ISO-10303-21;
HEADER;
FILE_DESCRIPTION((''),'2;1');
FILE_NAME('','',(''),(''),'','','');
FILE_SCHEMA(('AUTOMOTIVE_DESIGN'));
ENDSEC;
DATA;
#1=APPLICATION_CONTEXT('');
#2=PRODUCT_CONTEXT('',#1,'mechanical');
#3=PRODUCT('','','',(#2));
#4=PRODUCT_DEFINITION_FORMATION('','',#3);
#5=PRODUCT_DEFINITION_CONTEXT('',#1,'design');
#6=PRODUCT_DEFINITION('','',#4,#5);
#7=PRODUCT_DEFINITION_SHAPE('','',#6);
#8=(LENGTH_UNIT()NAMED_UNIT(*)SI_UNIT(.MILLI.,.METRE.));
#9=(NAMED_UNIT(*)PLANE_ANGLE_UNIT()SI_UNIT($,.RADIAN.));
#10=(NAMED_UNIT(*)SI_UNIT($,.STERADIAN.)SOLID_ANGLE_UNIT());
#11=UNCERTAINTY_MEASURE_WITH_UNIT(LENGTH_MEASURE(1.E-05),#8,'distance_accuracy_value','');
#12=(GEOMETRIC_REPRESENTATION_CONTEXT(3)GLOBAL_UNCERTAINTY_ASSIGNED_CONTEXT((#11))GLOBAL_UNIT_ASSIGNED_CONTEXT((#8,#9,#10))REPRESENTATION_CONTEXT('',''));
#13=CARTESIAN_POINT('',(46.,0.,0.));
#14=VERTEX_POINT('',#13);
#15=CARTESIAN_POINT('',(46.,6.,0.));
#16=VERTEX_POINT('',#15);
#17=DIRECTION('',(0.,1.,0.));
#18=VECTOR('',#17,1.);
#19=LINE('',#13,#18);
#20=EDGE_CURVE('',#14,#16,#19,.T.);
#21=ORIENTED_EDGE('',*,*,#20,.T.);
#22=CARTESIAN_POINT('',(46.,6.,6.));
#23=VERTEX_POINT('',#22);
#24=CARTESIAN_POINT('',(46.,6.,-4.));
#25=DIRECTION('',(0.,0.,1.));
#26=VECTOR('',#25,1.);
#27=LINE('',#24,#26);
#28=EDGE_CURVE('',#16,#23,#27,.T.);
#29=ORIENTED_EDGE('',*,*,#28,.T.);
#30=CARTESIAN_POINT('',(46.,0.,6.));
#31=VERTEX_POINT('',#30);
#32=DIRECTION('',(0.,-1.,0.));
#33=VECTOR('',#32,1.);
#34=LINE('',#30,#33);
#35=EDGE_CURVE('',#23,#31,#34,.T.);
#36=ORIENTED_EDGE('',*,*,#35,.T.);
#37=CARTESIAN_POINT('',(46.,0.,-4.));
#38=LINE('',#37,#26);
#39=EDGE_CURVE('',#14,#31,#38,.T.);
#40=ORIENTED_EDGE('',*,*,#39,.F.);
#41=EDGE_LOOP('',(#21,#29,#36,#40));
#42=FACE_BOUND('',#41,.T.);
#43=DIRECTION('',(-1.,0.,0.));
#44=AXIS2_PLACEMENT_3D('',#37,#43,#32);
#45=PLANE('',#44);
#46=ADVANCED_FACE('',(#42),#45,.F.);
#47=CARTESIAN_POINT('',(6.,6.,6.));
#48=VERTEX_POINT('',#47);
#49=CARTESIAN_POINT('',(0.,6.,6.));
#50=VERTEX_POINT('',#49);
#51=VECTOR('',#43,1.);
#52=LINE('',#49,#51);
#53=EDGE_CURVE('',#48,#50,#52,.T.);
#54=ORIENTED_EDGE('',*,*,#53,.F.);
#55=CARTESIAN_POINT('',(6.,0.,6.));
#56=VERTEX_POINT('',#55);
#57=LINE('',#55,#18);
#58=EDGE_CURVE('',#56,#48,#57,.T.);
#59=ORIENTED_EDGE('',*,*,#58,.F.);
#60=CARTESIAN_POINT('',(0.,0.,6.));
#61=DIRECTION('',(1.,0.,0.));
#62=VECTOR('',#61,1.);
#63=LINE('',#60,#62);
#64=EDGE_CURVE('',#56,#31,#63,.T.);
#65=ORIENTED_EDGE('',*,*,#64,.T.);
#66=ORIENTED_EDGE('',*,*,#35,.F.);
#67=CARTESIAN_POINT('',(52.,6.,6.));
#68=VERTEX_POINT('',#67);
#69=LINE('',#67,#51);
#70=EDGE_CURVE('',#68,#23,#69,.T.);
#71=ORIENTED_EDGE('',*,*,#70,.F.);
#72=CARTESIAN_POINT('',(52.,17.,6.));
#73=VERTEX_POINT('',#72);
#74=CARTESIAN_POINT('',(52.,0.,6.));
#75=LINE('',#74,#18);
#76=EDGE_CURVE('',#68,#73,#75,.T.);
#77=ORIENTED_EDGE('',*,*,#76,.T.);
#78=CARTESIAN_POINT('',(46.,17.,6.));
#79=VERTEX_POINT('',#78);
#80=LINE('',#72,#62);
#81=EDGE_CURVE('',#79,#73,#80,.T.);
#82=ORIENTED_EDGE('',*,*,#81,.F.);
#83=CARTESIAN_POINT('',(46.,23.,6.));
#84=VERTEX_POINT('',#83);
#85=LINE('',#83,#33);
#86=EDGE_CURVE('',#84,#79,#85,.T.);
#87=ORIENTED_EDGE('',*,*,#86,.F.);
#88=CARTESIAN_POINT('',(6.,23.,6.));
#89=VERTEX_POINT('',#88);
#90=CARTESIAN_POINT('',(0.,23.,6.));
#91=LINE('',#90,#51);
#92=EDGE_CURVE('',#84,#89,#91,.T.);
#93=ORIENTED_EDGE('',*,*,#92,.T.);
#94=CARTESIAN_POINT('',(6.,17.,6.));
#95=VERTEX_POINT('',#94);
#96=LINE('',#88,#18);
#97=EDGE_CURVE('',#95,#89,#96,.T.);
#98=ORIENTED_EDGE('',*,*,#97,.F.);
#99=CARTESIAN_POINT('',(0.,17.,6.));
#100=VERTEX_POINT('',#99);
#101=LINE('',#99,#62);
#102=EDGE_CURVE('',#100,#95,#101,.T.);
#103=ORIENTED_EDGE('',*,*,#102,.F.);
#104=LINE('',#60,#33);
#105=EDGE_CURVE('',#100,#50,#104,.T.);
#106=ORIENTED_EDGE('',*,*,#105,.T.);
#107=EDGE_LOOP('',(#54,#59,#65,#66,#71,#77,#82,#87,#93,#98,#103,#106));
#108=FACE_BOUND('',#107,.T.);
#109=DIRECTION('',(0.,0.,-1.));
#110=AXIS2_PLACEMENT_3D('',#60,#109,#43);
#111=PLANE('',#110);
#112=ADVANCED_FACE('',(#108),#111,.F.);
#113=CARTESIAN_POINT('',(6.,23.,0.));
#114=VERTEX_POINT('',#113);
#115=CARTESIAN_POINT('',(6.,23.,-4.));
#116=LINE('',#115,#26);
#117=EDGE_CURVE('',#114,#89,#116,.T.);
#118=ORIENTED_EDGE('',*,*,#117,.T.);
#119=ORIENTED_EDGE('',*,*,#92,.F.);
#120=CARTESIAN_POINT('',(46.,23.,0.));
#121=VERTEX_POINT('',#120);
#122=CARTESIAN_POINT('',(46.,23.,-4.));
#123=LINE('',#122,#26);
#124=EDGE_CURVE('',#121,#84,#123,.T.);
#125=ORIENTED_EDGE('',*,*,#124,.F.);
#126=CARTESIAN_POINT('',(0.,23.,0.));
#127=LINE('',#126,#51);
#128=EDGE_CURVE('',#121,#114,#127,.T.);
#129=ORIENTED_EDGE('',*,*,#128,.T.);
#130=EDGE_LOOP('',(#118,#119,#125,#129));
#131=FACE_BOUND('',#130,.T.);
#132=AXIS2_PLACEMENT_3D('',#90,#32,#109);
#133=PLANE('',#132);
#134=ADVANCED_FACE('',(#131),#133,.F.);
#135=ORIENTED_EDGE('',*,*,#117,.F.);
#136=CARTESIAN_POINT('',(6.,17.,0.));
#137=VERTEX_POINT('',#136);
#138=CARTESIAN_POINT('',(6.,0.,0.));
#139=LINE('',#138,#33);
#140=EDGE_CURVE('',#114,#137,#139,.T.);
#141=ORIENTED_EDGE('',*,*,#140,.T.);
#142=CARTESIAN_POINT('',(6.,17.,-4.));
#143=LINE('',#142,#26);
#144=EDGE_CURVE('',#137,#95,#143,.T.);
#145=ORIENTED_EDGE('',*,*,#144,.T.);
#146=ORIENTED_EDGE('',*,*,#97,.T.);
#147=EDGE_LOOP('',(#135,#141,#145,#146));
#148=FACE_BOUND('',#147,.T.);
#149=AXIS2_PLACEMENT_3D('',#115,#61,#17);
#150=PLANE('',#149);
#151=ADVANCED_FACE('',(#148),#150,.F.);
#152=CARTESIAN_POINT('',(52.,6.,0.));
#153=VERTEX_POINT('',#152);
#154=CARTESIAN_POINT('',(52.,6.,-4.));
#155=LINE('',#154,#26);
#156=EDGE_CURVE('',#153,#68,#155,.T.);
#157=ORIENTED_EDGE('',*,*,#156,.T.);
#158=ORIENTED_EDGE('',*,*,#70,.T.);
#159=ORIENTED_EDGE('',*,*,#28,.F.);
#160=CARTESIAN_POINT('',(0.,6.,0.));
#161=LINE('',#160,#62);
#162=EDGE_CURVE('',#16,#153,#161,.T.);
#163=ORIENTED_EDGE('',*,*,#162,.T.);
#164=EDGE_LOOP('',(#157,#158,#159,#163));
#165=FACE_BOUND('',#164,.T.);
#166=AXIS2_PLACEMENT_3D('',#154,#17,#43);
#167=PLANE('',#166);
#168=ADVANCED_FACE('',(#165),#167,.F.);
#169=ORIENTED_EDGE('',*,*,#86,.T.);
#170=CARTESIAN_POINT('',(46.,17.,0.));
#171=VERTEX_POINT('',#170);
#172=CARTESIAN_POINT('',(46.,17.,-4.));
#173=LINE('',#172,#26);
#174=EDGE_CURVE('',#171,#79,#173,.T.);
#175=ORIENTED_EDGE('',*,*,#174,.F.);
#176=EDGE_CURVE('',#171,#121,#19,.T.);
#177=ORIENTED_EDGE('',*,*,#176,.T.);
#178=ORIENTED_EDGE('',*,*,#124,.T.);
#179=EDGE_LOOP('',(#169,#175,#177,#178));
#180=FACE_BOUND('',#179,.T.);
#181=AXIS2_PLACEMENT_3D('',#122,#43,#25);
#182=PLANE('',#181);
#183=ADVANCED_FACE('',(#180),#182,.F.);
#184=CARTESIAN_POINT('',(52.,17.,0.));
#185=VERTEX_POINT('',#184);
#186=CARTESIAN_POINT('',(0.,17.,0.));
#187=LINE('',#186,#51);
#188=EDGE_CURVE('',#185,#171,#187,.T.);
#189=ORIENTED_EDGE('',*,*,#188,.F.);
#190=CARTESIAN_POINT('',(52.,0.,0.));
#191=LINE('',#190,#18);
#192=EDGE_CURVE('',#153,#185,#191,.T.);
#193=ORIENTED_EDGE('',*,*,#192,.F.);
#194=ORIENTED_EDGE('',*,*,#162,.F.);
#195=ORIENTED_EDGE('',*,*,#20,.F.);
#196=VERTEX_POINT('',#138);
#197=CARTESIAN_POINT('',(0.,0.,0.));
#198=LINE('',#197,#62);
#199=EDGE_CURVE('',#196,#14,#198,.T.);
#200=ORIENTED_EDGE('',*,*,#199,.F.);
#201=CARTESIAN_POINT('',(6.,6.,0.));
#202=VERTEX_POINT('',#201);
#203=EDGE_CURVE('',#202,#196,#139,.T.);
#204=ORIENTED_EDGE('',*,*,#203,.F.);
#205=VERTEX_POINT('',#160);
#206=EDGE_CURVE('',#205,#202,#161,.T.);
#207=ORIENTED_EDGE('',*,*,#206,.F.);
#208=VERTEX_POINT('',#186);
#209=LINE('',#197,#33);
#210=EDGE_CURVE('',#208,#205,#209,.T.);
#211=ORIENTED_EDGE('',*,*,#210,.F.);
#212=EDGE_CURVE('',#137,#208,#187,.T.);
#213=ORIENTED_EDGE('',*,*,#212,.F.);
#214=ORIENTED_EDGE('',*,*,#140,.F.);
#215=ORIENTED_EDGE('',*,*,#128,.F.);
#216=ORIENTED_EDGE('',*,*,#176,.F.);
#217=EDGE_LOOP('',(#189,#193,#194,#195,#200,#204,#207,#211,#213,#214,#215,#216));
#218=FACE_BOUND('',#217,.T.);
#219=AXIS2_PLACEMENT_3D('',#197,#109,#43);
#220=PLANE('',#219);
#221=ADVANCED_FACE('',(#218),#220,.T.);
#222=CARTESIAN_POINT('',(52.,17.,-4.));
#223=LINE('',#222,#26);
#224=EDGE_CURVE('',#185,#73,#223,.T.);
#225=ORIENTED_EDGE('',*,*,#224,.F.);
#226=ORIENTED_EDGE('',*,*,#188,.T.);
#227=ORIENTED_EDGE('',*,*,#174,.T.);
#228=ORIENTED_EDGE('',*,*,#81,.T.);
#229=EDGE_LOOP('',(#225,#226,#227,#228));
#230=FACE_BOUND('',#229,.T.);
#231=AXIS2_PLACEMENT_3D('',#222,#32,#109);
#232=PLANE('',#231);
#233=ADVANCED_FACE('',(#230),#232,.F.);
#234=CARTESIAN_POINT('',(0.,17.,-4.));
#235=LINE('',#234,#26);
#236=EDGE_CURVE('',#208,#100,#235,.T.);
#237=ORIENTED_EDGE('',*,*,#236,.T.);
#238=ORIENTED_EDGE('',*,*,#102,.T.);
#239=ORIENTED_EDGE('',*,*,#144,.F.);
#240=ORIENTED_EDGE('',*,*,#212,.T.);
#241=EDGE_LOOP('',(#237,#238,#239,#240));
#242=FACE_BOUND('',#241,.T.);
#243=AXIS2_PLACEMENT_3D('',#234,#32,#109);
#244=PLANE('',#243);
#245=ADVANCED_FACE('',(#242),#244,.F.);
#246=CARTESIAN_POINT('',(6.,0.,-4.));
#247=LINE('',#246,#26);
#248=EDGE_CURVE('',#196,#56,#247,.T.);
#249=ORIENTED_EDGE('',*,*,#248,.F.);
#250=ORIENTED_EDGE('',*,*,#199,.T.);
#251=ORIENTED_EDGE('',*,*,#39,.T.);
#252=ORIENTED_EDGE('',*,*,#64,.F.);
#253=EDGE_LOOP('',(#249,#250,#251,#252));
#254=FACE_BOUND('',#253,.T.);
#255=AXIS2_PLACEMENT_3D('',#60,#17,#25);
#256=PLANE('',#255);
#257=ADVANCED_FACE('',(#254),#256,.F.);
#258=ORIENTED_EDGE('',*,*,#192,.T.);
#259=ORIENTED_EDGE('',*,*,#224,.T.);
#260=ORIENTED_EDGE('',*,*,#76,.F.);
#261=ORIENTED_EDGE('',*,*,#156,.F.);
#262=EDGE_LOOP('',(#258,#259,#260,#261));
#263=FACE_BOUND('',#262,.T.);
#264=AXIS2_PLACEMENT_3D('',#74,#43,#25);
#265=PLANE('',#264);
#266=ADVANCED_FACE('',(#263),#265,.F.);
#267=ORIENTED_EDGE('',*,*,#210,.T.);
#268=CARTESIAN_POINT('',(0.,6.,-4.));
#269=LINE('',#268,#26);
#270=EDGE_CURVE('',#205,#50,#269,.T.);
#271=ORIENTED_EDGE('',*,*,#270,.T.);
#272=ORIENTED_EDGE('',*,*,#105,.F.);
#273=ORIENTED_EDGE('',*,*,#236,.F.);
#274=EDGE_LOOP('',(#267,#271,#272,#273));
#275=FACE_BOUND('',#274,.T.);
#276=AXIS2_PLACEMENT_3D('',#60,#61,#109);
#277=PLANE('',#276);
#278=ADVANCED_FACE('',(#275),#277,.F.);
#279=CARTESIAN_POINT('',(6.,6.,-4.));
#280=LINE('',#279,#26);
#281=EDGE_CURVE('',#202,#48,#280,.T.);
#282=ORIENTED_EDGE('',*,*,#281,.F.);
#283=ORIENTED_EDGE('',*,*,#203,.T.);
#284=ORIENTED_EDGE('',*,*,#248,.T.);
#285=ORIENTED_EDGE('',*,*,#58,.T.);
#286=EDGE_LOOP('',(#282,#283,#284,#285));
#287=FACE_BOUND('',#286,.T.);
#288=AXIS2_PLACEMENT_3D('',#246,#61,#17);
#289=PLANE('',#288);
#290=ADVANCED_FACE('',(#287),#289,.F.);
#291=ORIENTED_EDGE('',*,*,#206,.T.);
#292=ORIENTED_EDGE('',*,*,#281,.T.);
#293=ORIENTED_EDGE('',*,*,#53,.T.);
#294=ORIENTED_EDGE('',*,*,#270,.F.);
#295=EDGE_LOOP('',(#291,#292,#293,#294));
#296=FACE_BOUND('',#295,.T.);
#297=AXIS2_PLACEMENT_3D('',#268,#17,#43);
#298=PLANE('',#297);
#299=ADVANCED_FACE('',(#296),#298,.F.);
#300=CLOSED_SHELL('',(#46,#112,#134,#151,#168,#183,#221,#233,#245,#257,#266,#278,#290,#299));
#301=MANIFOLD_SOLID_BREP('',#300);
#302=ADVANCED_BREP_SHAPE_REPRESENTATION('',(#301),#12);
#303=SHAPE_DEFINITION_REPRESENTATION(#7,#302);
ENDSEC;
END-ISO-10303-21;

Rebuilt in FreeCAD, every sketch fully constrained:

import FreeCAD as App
import Part
import Sketcher
from FreeCAD import Vector

doc = App.newDocument("Part")
body = doc.addObject("PartDesign::Body", "Body")

sketch1 = body.newObject("Sketcher::SketchObject", "Sketch")
sketch1.AttachmentSupport = (doc.getObject("XY_Plane"), [""])
sketch1.MapMode = "FlatFace"
sketch1.addGeometry(Part.LineSegment(Vector(0, 23, 0), Vector(0, 0, 0)), False)
sketch1.addGeometry(Part.LineSegment(Vector(0, 0, 0), Vector(52, 0, 0)), False)
sketch1.addGeometry(Part.LineSegment(Vector(52, 0, 0), Vector(52, 23, 0)), False)
sketch1.addGeometry(Part.LineSegment(Vector(52, 23, 0), Vector(0, 23, 0)), False)
sketch1.addConstraint(Sketcher.Constraint("Coincident", 0, 2, 1, 1))
sketch1.addConstraint(Sketcher.Constraint("Coincident", 1, 2, 2, 1))
sketch1.addConstraint(Sketcher.Constraint("Coincident", 2, 2, 3, 1))
sketch1.addConstraint(Sketcher.Constraint("Coincident", 3, 2, 0, 1))
sketch1.addConstraint(Sketcher.Constraint("Vertical", 0))
sketch1.addConstraint(Sketcher.Constraint("Horizontal", 1))
sketch1.addConstraint(Sketcher.Constraint("Vertical", 2))
sketch1.addConstraint(Sketcher.Constraint("Horizontal", 3))
sketch1.addConstraint(Sketcher.Constraint("Coincident", 0, 2, -1, 1))
sketch1.addConstraint(Sketcher.Constraint("DistanceX", 1, 1, 1, 2, 52.0))
sketch1.addConstraint(Sketcher.Constraint("DistanceY", 0, 2, 0, 1, 23.0))
pad1 = body.newObject("PartDesign::Pad", "Pad")
pad1.Profile = sketch1
pad1.Length = 6

sketch2 = body.newObject("Sketcher::SketchObject", "Sketch001")
sketch2.AttachmentSupport = (doc.getObject("XY_Plane"), [""])
sketch2.MapMode = "FlatFace"
sketch2.AttachmentOffset = App.Placement(Vector(0, 0, 6), App.Rotation())
sketch2.addGeometry(Part.LineSegment(Vector(0, 23, 0), Vector(0, 17, 0)), False)
sketch2.addGeometry(Part.LineSegment(Vector(0, 17, 0), Vector(6, 17, 0)), False)
sketch2.addGeometry(Part.LineSegment(Vector(6, 17, 0), Vector(6, 23, 0)), False)
sketch2.addGeometry(Part.LineSegment(Vector(6, 23, 0), Vector(0, 23, 0)), False)
sketch2.addGeometry(Part.LineSegment(Vector(0, 6, 0), Vector(0, 0, 0)), False)
sketch2.addGeometry(Part.LineSegment(Vector(0, 0, 0), Vector(6, 0, 0)), False)
sketch2.addGeometry(Part.LineSegment(Vector(6, 0, 0), Vector(6, 6, 0)), False)
sketch2.addGeometry(Part.LineSegment(Vector(6, 6, 0), Vector(0, 6, 0)), False)
sketch2.addGeometry(Part.LineSegment(Vector(46, 6, 0), Vector(46, 0, 0)), False)
sketch2.addGeometry(Part.LineSegment(Vector(46, 0, 0), Vector(52, 0, 0)), False)
sketch2.addGeometry(Part.LineSegment(Vector(52, 0, 0), Vector(52, 6, 0)), False)
sketch2.addGeometry(Part.LineSegment(Vector(52, 6, 0), Vector(46, 6, 0)), False)
sketch2.addGeometry(Part.LineSegment(Vector(46, 23, 0), Vector(46, 17, 0)), False)
sketch2.addGeometry(Part.LineSegment(Vector(46, 17, 0), Vector(52, 17, 0)), False)
sketch2.addGeometry(Part.LineSegment(Vector(52, 17, 0), Vector(52, 23, 0)), False)
sketch2.addGeometry(Part.LineSegment(Vector(52, 23, 0), Vector(46, 23, 0)), False)
sketch2.addConstraint(Sketcher.Constraint("Coincident", 0, 2, 1, 1))
sketch2.addConstraint(Sketcher.Constraint("Coincident", 1, 2, 2, 1))
sketch2.addConstraint(Sketcher.Constraint("Coincident", 2, 2, 3, 1))
sketch2.addConstraint(Sketcher.Constraint("Coincident", 3, 2, 0, 1))
sketch2.addConstraint(Sketcher.Constraint("Coincident", 4, 2, 5, 1))
sketch2.addConstraint(Sketcher.Constraint("Coincident", 5, 2, 6, 1))
sketch2.addConstraint(Sketcher.Constraint("Coincident", 6, 2, 7, 1))
sketch2.addConstraint(Sketcher.Constraint("Coincident", 7, 2, 4, 1))
sketch2.addConstraint(Sketcher.Constraint("Coincident", 8, 2, 9, 1))
sketch2.addConstraint(Sketcher.Constraint("Coincident", 9, 2, 10, 1))
sketch2.addConstraint(Sketcher.Constraint("Coincident", 10, 2, 11, 1))
sketch2.addConstraint(Sketcher.Constraint("Coincident", 11, 2, 8, 1))
sketch2.addConstraint(Sketcher.Constraint("Coincident", 12, 2, 13, 1))
sketch2.addConstraint(Sketcher.Constraint("Coincident", 13, 2, 14, 1))
sketch2.addConstraint(Sketcher.Constraint("Coincident", 14, 2, 15, 1))
sketch2.addConstraint(Sketcher.Constraint("Coincident", 15, 2, 12, 1))
sketch2.addConstraint(Sketcher.Constraint("Vertical", 0))
sketch2.addConstraint(Sketcher.Constraint("Horizontal", 1))
sketch2.addConstraint(Sketcher.Constraint("Vertical", 2))
sketch2.addConstraint(Sketcher.Constraint("Horizontal", 3))
sketch2.addConstraint(Sketcher.Constraint("Vertical", 4))
sketch2.addConstraint(Sketcher.Constraint("Horizontal", 5))
sketch2.addConstraint(Sketcher.Constraint("Vertical", 6))
sketch2.addConstraint(Sketcher.Constraint("Horizontal", 7))
sketch2.addConstraint(Sketcher.Constraint("Vertical", 8))
sketch2.addConstraint(Sketcher.Constraint("Horizontal", 9))
sketch2.addConstraint(Sketcher.Constraint("Vertical", 10))
sketch2.addConstraint(Sketcher.Constraint("Horizontal", 11))
sketch2.addConstraint(Sketcher.Constraint("Vertical", 12))
sketch2.addConstraint(Sketcher.Constraint("Horizontal", 13))
sketch2.addConstraint(Sketcher.Constraint("Vertical", 14))
sketch2.addConstraint(Sketcher.Constraint("Horizontal", 15))
sketch2.addConstraint(Sketcher.Constraint("Coincident", 4, 2, -1, 1))
sketch2.addConstraint(Sketcher.Constraint("PointOnObject", 0, 2, -2))
sketch2.addConstraint(Sketcher.Constraint("PointOnObject", 8, 2, -1))
sketch2.addConstraint(Sketcher.Constraint("Horizontal", 7, 2, 10, 2))
sketch2.addConstraint(Sketcher.Constraint("Horizontal", 1, 2, 12, 2))
sketch2.addConstraint(Sketcher.Constraint("Horizontal", 3, 2, 14, 2))
sketch2.addConstraint(Sketcher.Constraint("Vertical", 2, 2, 5, 2))
sketch2.addConstraint(Sketcher.Constraint("Vertical", 11, 2, 12, 2))
sketch2.addConstraint(Sketcher.Constraint("Vertical", 10, 2, 13, 2))
sketch2.addConstraint(Sketcher.Constraint("Equal", 7, 9))
sketch2.addConstraint(Sketcher.Constraint("Equal", 15, 0))
sketch2.addConstraint(Sketcher.Constraint("Equal", 2, 4))
sketch2.addConstraint(Sketcher.Constraint("DistanceX", 1, 1, 1, 2, 6.0))
sketch2.addConstraint(Sketcher.Constraint("DistanceY", -1, 1, 0, 2, 17.0))
sketch2.addConstraint(Sketcher.Constraint("DistanceX", -1, 1, 8, 2, 46.0))
pocket1 = body.newObject("PartDesign::Pocket", "Pocket")
pocket1.Profile = sketch2
pocket1.Length = 10

doc.recompute()
